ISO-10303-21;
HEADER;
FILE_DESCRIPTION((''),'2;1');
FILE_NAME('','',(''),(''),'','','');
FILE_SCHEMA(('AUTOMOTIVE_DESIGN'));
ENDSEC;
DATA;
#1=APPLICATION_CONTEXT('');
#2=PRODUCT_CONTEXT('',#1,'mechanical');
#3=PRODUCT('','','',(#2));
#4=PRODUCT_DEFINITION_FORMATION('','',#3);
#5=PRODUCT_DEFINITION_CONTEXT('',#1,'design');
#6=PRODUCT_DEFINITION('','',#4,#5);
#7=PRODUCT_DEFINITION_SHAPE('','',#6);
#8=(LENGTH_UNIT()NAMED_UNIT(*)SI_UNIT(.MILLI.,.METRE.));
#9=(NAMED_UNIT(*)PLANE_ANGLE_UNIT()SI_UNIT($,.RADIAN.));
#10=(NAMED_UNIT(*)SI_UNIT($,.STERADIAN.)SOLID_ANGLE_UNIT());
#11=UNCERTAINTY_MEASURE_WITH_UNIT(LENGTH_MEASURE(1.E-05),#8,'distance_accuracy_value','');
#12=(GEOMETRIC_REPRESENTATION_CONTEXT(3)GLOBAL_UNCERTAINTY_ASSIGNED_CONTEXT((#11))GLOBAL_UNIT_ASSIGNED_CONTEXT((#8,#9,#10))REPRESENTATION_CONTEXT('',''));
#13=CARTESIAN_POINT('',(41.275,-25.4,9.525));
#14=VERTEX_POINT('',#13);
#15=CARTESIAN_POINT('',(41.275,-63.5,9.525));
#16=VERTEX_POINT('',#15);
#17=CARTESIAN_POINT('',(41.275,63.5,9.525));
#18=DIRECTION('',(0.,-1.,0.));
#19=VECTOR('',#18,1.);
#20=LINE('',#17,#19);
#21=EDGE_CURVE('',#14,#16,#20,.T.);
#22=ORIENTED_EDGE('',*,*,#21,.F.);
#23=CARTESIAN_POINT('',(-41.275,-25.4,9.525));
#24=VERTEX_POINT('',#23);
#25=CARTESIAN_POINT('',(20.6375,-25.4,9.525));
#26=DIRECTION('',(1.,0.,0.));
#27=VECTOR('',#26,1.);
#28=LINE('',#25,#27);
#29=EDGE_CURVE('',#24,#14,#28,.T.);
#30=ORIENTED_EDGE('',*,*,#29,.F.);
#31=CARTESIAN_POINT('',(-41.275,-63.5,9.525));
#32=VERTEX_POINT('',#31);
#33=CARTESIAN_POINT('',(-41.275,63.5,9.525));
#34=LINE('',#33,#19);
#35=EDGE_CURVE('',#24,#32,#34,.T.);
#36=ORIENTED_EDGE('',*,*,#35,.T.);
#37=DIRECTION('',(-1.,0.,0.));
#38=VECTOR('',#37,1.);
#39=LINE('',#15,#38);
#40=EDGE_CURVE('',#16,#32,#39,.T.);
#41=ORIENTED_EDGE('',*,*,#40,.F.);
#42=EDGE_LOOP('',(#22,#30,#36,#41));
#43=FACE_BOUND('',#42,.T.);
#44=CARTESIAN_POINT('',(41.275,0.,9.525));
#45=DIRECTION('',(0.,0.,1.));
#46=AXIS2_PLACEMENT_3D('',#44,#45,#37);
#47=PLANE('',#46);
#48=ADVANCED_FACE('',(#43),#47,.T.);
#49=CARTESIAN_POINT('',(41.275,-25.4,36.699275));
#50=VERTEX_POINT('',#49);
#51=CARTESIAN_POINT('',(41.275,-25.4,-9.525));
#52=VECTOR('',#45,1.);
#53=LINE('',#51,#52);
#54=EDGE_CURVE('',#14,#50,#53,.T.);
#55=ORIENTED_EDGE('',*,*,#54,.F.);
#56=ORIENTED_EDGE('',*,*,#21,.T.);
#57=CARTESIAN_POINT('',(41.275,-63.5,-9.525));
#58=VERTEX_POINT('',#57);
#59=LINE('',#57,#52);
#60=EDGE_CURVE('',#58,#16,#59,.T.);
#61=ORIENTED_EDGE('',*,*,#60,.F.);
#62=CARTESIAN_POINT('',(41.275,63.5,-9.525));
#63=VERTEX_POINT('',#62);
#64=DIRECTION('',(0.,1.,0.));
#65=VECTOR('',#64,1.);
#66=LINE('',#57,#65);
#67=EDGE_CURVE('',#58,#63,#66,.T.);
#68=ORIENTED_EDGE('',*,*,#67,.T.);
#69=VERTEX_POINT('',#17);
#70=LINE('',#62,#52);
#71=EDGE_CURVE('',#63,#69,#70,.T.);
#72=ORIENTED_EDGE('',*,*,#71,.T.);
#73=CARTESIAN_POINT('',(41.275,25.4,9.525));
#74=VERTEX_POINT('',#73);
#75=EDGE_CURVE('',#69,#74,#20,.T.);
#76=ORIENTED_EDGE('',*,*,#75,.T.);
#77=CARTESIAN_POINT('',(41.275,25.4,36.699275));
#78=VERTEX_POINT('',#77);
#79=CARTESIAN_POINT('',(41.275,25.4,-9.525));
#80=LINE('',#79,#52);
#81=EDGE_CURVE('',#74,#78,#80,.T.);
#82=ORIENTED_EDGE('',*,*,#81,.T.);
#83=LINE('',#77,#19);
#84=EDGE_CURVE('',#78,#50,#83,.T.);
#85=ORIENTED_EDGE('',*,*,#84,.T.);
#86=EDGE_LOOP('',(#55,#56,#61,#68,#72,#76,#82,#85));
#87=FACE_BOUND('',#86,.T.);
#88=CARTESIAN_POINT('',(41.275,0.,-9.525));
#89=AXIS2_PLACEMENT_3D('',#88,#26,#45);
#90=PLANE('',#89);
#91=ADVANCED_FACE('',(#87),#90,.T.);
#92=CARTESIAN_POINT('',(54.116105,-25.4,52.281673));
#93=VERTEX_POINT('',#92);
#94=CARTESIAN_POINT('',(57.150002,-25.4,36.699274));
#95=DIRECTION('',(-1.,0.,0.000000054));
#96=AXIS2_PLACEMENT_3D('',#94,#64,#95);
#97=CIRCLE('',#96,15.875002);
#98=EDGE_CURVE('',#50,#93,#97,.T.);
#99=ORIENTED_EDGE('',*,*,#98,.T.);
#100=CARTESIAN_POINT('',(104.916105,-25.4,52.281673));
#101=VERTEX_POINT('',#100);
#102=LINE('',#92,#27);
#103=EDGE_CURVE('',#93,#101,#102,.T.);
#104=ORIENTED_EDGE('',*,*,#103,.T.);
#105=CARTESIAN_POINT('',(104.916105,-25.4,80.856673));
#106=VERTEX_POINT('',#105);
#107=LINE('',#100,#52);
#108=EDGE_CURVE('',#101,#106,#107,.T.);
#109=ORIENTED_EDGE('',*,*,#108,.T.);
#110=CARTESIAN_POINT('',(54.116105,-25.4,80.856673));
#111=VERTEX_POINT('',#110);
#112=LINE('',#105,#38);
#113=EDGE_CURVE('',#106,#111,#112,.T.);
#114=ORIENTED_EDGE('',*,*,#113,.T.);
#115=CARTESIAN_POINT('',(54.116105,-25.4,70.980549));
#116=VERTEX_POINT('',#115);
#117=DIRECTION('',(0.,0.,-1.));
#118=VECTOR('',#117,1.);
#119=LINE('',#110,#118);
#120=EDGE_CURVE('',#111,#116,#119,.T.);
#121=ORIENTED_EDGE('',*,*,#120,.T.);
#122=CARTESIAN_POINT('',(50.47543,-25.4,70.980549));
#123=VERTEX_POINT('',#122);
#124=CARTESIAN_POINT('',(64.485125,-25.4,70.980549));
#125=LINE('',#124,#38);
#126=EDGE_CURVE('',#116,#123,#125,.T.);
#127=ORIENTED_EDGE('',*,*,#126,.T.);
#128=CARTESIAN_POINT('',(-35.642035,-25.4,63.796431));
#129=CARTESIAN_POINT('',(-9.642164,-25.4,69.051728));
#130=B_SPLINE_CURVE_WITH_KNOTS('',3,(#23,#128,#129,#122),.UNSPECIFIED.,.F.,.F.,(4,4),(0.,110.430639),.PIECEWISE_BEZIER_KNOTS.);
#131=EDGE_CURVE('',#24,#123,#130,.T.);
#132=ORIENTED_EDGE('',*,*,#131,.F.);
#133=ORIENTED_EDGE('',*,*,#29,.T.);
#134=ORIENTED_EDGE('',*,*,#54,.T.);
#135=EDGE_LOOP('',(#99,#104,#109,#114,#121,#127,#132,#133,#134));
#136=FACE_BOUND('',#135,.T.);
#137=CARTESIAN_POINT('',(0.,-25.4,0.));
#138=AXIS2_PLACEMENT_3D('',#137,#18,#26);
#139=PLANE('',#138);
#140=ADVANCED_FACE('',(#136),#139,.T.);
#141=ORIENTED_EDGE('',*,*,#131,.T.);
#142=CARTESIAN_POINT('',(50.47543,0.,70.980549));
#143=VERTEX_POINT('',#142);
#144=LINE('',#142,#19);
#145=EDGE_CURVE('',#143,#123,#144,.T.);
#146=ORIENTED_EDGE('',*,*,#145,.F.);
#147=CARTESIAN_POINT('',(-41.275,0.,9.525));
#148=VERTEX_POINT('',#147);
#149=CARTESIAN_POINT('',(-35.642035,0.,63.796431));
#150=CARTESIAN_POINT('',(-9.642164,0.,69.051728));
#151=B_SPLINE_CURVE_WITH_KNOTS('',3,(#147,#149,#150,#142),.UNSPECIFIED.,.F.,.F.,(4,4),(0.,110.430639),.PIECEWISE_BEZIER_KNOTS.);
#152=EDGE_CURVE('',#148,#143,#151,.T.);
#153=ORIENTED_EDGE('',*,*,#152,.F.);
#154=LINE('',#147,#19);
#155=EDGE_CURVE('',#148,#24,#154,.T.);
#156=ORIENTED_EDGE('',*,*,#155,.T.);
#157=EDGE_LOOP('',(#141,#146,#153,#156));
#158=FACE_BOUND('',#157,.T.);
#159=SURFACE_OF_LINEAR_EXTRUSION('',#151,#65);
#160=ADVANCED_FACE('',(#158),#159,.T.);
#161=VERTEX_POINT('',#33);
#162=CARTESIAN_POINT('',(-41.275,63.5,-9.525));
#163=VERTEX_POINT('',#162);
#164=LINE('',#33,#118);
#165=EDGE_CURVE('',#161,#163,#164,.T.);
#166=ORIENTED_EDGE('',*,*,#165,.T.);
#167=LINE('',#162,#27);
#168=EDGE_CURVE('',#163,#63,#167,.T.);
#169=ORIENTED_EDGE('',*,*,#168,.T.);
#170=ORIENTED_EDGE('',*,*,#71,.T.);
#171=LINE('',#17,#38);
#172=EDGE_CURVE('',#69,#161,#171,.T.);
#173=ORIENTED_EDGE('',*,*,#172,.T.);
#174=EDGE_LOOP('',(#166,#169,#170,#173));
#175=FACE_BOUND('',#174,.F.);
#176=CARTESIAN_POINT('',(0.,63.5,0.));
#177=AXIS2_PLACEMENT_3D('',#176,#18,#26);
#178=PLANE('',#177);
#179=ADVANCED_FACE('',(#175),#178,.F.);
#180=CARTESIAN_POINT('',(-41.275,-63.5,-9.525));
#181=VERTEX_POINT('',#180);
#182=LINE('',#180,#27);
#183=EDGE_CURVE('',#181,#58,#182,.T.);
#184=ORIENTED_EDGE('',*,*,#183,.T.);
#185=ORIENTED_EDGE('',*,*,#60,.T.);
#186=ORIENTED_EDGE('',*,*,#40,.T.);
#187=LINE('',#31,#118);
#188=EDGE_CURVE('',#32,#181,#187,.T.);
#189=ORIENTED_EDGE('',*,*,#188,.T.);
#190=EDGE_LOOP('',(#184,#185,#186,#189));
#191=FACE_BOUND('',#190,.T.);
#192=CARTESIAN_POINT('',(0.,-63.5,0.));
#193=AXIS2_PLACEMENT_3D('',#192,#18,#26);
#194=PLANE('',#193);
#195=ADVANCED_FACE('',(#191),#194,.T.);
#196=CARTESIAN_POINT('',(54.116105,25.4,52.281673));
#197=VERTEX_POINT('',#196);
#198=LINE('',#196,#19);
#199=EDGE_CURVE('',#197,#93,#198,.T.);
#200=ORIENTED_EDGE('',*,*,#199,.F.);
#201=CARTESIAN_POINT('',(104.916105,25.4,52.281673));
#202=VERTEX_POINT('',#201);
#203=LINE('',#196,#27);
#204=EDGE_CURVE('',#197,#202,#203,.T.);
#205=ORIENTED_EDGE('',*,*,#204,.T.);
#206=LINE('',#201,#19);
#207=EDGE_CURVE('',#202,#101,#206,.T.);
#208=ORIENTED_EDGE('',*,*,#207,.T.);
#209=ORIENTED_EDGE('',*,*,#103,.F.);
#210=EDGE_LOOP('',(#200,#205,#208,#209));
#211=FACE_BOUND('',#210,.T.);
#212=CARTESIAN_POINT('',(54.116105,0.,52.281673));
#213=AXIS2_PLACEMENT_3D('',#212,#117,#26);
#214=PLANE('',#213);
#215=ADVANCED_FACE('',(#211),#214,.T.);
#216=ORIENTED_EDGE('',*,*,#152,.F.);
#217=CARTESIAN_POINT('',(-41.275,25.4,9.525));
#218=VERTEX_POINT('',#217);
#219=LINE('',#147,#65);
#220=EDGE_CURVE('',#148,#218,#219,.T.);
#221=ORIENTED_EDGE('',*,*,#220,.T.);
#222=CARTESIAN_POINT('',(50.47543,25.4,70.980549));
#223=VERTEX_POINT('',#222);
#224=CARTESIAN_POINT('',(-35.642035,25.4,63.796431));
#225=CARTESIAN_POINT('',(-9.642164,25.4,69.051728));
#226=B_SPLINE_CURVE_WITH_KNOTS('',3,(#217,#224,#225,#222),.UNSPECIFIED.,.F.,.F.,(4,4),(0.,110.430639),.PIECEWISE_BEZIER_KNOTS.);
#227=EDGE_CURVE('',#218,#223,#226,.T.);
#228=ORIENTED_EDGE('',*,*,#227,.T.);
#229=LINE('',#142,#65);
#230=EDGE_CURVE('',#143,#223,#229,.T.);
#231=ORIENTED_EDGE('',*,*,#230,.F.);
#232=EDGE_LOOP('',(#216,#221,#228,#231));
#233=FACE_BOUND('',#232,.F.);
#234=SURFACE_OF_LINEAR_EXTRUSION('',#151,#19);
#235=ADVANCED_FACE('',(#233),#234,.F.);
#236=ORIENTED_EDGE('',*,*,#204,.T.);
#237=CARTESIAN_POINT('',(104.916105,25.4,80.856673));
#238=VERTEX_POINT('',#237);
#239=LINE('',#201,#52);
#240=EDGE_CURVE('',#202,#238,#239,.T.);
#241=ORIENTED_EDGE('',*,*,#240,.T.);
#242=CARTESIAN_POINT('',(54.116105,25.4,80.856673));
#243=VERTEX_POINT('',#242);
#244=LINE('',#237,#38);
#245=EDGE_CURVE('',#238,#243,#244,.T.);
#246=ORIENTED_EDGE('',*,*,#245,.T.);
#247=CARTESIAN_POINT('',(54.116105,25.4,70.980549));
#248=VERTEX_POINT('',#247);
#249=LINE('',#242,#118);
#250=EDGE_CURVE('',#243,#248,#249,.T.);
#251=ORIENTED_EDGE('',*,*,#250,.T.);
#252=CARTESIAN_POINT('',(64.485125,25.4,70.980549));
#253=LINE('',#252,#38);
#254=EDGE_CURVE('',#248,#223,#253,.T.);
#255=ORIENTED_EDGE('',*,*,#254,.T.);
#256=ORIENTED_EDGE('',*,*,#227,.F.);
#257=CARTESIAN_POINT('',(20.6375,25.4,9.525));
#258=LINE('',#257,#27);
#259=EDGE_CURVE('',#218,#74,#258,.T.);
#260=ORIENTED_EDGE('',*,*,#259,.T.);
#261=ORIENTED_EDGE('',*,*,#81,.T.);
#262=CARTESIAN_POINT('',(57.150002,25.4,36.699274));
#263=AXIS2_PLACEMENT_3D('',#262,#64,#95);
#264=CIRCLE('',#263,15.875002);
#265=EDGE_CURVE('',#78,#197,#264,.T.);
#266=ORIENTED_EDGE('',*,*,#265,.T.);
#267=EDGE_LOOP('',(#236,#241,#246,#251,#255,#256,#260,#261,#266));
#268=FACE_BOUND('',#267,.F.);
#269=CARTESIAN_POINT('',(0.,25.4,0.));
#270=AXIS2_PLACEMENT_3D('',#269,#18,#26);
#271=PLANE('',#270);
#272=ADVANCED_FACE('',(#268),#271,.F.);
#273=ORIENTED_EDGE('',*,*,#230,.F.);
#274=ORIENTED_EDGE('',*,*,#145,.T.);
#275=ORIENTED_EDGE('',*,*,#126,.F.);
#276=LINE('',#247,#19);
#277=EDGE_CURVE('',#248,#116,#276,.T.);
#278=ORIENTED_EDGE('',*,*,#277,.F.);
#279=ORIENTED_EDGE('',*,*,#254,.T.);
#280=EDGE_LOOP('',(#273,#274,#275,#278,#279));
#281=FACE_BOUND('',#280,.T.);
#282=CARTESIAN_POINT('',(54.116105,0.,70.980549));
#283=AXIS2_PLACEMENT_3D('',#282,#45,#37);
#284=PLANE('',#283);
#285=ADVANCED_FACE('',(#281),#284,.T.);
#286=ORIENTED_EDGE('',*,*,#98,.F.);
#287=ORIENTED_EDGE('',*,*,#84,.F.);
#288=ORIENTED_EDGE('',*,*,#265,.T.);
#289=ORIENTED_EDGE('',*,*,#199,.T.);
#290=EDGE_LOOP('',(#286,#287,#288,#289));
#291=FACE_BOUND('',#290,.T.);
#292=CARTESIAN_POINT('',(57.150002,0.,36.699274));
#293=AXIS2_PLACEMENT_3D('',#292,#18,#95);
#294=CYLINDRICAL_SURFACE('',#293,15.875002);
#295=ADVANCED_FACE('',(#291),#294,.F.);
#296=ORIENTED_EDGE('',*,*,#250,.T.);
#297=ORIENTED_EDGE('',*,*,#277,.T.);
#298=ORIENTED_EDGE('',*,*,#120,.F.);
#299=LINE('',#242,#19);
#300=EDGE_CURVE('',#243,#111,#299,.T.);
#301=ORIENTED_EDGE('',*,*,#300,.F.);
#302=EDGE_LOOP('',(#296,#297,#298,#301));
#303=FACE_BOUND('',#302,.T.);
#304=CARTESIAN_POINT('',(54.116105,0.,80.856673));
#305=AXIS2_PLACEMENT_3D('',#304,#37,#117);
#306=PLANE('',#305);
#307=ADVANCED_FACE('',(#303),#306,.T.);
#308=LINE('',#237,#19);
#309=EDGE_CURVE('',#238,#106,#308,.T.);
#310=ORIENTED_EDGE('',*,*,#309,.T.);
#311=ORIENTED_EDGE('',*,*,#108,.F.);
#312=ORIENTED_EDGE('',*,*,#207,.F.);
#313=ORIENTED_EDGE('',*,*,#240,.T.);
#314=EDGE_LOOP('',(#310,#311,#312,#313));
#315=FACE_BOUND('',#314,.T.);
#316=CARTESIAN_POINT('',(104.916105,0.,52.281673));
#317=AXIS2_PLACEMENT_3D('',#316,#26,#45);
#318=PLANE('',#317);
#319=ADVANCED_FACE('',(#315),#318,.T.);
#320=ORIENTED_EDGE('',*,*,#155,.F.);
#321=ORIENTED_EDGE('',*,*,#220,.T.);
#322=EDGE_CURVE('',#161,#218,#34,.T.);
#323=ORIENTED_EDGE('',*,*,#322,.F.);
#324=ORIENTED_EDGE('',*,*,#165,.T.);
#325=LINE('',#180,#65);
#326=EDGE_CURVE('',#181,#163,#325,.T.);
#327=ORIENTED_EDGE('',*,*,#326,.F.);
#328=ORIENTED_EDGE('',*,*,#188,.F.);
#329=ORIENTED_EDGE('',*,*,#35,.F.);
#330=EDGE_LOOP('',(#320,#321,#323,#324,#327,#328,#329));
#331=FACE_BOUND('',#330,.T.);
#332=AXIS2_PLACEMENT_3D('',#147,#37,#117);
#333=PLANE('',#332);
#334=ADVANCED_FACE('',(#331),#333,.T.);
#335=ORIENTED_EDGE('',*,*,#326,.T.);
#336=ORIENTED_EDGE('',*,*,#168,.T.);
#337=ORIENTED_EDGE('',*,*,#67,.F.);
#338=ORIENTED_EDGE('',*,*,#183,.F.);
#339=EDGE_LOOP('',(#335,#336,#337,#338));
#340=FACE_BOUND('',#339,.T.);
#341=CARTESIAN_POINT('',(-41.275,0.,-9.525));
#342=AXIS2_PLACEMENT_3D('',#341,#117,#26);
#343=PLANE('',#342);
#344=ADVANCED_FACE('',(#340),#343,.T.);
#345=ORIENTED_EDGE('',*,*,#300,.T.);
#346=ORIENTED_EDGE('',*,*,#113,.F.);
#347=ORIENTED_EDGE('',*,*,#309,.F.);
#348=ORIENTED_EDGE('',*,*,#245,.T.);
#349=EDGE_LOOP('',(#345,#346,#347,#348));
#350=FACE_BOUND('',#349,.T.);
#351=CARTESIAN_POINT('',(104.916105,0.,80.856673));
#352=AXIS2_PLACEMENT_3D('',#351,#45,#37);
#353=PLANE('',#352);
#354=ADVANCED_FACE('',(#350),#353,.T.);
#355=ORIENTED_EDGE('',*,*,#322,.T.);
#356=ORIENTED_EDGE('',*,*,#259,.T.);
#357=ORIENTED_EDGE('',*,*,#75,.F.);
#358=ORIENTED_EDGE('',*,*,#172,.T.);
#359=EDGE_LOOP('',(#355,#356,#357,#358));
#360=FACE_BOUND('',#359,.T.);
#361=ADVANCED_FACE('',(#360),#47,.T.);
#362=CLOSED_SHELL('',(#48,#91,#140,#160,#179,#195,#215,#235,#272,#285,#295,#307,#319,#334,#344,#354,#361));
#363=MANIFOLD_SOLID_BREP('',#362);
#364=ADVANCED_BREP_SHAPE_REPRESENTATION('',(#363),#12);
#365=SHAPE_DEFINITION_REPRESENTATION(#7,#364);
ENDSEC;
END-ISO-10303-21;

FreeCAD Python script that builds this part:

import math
import FreeCAD as App
import Part
import Sketcher

V = App.Vector
Q = App.Units.Quantity

doc = App.newDocument("Part")
body = doc.addObject("PartDesign::Body", "Body")

sketch1 = body.newObject("Sketcher::SketchObject", "Sketch")
sketch1.AttachmentSupport = (doc.getObject("XZ_Plane"), [""])
sketch1.MapMode = "FlatFace"
sketch1.addGeometry(Part.LineSegment(V(41.275, -9.525, 0), V(41.275, 9.525, 0)), False)
sketch1.addGeometry(Part.LineSegment(V(41.275, 9.525, 0), V(-41.275, 9.525, 0)), False)
sketch1.addGeometry(Part.LineSegment(V(-41.275, 9.525, 0), V(-41.275, -9.525, 0)), False)
sketch1.addGeometry(Part.LineSegment(V(-41.275, -9.525, 0), V(41.275, -9.525, 0)), False)
sketch1.addConstraint(Sketcher.Constraint("Coincident", 0, 2, 1, 1))
sketch1.addConstraint(Sketcher.Constraint("Coincident", 1, 2, 2, 1))
sketch1.addConstraint(Sketcher.Constraint("Coincident", 2, 2, 3, 1))
sketch1.addConstraint(Sketcher.Constraint("Coincident", 3, 2, 0, 1))
sketch1.addConstraint(Sketcher.Constraint("Vertical", 0))
sketch1.addConstraint(Sketcher.Constraint("Horizontal", 1))
sketch1.addConstraint(Sketcher.Constraint("Vertical", 2))
sketch1.addConstraint(Sketcher.Constraint("Horizontal", 3))
sketch1.addConstraint(Sketcher.Constraint("Symmetric", 0, 2, 2, 2, -1, 1))
sketch1.addConstraint(Sketcher.Constraint("DistanceX", 1, 2, 1, 1, Q("3.25 in")))
sketch1.addConstraint(Sketcher.Constraint("DistanceY", 0, 1, 0, 2, Q("0.75 in")))
pad1 = body.newObject("PartDesign::Pad", "Pad")
pad1.Profile = sketch1
pad1.Length = Q("5 in")
pad1.Midplane = True

sketch2 = body.newObject("Sketcher::SketchObject", "Sketch001")
sketch2.AttachmentSupport = (doc.getObject("XZ_Plane"), [""])
sketch2.MapMode = "FlatFace"
sketch2.addGeometry(Part.LineSegment(V(41.275, -9.525, 0), V(41.275, 36.699275, 0)), False)
sketch2.addGeometry(Part.ArcOfCircle(Part.Circle(V(57.150002, 36.699274, 0), V(0, 0, 1), 15.875002), math.radians(101.017663), math.radians(179.999997)), False)
sketch2.addGeometry(Part.LineSegment(V(54.116105, 52.281673, 0), V(104.916105, 52.281673, 0)), False)
sketch2.addGeometry(Part.LineSegment(V(104.916105, 52.281673, 0), V(104.916105, 80.856673, 0)), False)
sketch2.addGeometry(Part.LineSegment(V(104.916105, 80.856673, 0), V(54.116105, 80.856673, 0)), False)
sketch2.addGeometry(Part.LineSegment(V(54.116105, 80.856673, 0), V(54.116105, 70.980549, 0)), False)
sketch2.addGeometry(Part.LineSegment(V(54.116105, 70.980549, 0), V(50.47543, 70.980549, 0)), False)
sketch2.addGeometry(Part.BSplineCurve([V(-41.275, 9.525, 0), V(-35.642035, 63.796431, 0), V(-9.642164, 69.051728, 0), V(50.47543, 70.980549, 0)], [4, 4], [0, 110.430639], False, 3, [1, 1, 1, 1], False), False)
sketch2.addGeometry(Part.LineSegment(V(-41.275, 9.525, 0), V(-41.275, -9.525, 0)), False)
sketch2.addGeometry(Part.LineSegment(V(-41.275, -9.525, 0), V(41.275, -9.525, 0)), False)
sketch2.addConstraint(Sketcher.Constraint("Block", 7))
sketch2.addConstraint(Sketcher.Constraint("Tangent", 0, 2, 1, 2))
sketch2.addConstraint(Sketcher.Constraint("Coincident", 1, 1, 2, 1))
sketch2.addConstraint(Sketcher.Constraint("Coincident", 2, 2, 3, 1))
sketch2.addConstraint(Sketcher.Constraint("Coincident", 3, 2, 4, 1))
sketch2.addConstraint(Sketcher.Constraint("Coincident", 4, 2, 5, 1))
sketch2.addConstraint(Sketcher.Constraint("Coincident", 5, 2, 6, 1))
sketch2.addConstraint(Sketcher.Constraint("Coincident", 6, 2, 7, 2))
sketch2.addConstraint(Sketcher.Constraint("Coincident", 7, 1, 8, 1))
sketch2.addConstraint(Sketcher.Constraint("Coincident", 8, 2, 9, 1))
sketch2.addConstraint(Sketcher.Constraint("Coincident", 9, 2, 0, 1))
sketch2.addConstraint(Sketcher.Constraint("Vertical", 0))
sketch2.addConstraint(Sketcher.Constraint("Horizontal", 2))
sketch2.addConstraint(Sketcher.Constraint("Vertical", 3))
sketch2.addConstraint(Sketcher.Constraint("Horizontal", 4))
sketch2.addConstraint(Sketcher.Constraint("Vertical", 5))
sketch2.addConstraint(Sketcher.Constraint("Horizontal", 6))
sketch2.addConstraint(Sketcher.Constraint("Vertical", 8))
sketch2.addConstraint(Sketcher.Constraint("Horizontal", 9))
sketch2.addConstraint(Sketcher.Constraint("Vertical", 1, 1, 4, 2))
sketch2.addConstraint(Sketcher.Constraint("DistanceX", 2, 1, 2, 2, Q("2 in")))
sketch2.addConstraint(Sketcher.Constraint("Radius", 1, Q("0.6250001 in")))
sketch2.addConstraint(Sketcher.Constraint("DistanceX", 9, 1, 9, 2, Q("3.25 in")))
sketch2.addConstraint(Sketcher.Constraint("DistanceY", 8, 2, 8, 1, Q("0.75 in")))
sketch2.addConstraint(Sketcher.Constraint("DistanceY", 3, 1, 3, 2, Q("1.125 in")))
sketch2.addConstraint(Sketcher.Constraint("DistanceY", 1, 3, 1, 1, 15.582399))
sketch2.addConstraint(Sketcher.Constraint("DistanceY", 0, 1, 0, 2, 46.224275))
pad2 = body.newObject("PartDesign::Pad", "Pad001")
pad2.Profile = sketch2
pad2.Length = Q("2 in")
pad2.Midplane = True

doc.recompute()
